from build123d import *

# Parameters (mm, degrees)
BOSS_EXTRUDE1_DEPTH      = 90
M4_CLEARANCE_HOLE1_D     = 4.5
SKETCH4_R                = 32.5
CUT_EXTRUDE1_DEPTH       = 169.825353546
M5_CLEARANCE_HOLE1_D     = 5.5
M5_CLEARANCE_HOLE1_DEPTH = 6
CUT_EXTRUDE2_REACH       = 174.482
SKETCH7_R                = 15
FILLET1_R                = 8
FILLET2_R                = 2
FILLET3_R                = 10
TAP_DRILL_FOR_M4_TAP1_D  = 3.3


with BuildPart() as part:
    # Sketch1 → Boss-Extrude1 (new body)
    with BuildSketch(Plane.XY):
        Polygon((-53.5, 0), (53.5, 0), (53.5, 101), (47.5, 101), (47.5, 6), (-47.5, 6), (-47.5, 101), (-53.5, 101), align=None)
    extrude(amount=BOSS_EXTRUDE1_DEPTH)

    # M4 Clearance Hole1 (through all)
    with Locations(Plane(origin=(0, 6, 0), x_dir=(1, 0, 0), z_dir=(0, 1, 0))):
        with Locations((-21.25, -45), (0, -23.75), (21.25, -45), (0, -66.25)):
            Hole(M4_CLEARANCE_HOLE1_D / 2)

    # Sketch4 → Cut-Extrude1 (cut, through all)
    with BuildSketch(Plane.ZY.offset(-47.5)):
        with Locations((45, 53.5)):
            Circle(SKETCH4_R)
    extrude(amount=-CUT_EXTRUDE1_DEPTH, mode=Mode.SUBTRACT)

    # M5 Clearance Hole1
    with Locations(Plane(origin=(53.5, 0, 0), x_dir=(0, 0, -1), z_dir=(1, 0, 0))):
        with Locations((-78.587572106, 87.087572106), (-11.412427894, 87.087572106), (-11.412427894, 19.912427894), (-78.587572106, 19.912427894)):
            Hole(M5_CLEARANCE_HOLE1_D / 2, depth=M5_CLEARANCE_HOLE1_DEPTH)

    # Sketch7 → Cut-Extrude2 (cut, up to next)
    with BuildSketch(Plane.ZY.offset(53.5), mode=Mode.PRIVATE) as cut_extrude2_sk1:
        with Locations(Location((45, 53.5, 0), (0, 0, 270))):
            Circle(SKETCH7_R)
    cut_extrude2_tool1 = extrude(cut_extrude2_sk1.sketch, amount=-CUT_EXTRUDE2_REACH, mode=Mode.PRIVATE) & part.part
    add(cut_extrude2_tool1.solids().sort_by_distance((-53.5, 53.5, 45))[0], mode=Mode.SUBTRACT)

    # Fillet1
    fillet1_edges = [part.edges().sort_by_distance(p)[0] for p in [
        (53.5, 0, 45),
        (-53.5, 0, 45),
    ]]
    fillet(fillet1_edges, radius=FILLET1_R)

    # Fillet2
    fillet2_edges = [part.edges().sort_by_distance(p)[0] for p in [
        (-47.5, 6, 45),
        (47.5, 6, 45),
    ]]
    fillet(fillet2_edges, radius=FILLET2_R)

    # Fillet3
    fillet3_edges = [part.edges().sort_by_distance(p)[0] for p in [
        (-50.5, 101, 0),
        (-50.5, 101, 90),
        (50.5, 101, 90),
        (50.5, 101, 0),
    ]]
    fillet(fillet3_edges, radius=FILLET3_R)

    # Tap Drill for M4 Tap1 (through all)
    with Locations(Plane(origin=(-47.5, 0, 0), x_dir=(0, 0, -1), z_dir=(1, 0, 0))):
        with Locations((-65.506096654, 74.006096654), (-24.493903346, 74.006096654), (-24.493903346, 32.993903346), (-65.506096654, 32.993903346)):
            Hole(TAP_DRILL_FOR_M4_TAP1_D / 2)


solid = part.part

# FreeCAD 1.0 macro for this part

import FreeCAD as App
import Part
import Sketcher

V = App.Vector


def edges_at(feature, points):
    """Names of the edges that pass closest to the given points."""
    edges = feature.Shape.Edges
    near = lambda p: min(range(len(edges)), key=lambda i: edges[i].distToShape(Part.Vertex(*p))[0])
    return sorted({f"Edge{near(p) + 1}" for p in points})


def add_polygon(sketch, points):
    """Adds a closed chain of lines whose ends are joined by coincident constraints."""
    first, n = sketch.GeometryCount, len(points)
    for a, b in zip(points, points[1:] + points[:1]):
        sketch.addGeometry(Part.LineSegment(App.Vector(*a, 0), App.Vector(*b, 0)), False)
    for i in range(n):
        sketch.addConstraint(Sketcher.Constraint("Coincident", first + i, 2, first + (i + 1) % n, 1))

doc = App.newDocument("Part")
body = doc.addObject("PartDesign::Body", "Body")

sketch1 = body.newObject("Sketcher::SketchObject", "Sketch")
sketch1.AttachmentSupport = (doc.getObject("XY_Plane"), [""])
sketch1.MapMode = "FlatFace"
add_polygon(sketch1, [(-54, 0), (54, 0), (54, 101), (48, 101), (48, 6), (-48, 6), (-48, 101), (-54, 101)])
sketch1.addConstraint([
    Sketcher.Constraint("Horizontal", 0),
    Sketcher.Constraint("Vertical", 1),
    Sketcher.Constraint("Horizontal", 2),
    Sketcher.Constraint("Vertical", 3),
    Sketcher.Constraint("Horizontal", 4),
    Sketcher.Constraint("Vertical", 5),
    Sketcher.Constraint("Horizontal", 6),
    Sketcher.Constraint("Vertical", 7),
    Sketcher.Constraint("Symmetric", 0, 2, 7, 2, -1, 1),
    Sketcher.Constraint("Symmetric", 2, 2, 5, 2, -2),
    Sketcher.Constraint("Equal", 4, 3),
    Sketcher.Constraint("DistanceX", 0, 1, 0, 2, 107.0),
    Sketcher.Constraint("DistanceX", 2, 2, 2, 1, 6.0),
    Sketcher.Constraint("DistanceY", 1, 1, 1, 2, 101.0),
])
pad1 = body.newObject("PartDesign::Pad", "Pad")
pad1.Profile = sketch1
pad1.Length = 90

sketch2 = body.newObject("Sketcher::SketchObject", "Sketch001")
sketch2.AttachmentSupport = (doc.getObject("XZ_Plane"), [""])
sketch2.MapMode = "FlatFace"
sketch2.AttachmentOffset = App.Placement(V(0, 0, -6), App.Rotation())
sketch2.addGeometry([
    Part.Circle(V(-21.2, 45, 0), V(0, 0, 1), 2.2),
    Part.Circle(V(0, 23.8, 0), V(0, 0, 1), 2.2),
    Part.Circle(V(21.2, 45, 0), V(0, 0, 1), 2.2),
    Part.Circle(V(0, 66.2, 0), V(0, 0, 1), 2.2),
], False)
sketch2.addConstraint([
    Sketcher.Constraint("Equal", 0, 1),
    Sketcher.Constraint("Equal", 1, 2),
    Sketcher.Constraint("Equal", 2, 3),
    Sketcher.Constraint("Symmetric", 0, 3, 2, 3, -2),
    Sketcher.Constraint("PointOnObject", 1, 3, -2),
    Sketcher.Constraint("PointOnObject", 3, 3, -2),
    Sketcher.Constraint("Diameter", 0, 4.5),
    Sketcher.Constraint("DistanceY", -1, 1, 0, 3, 45.0),
    Sketcher.Constraint("DistanceX", 0, 3, 2, 3, 42.5),
    Sketcher.Constraint("DistanceY", 1, 3, 3, 3, 42.5),
    Sketcher.Constraint("DistanceY", -1, 1, 1, 3, 23.75),
])
doc.recompute()
hole = body.newObject("PartDesign::Hole", "Hole")
hole.Profile = sketch2
hole.ThreadType = "None"
hole.Diameter = 4.5
hole.DepthType = "ThroughAll"
hole.Reversed = True

sketch3 = body.newObject("Sketcher::SketchObject", "Sketch002")
sketch3.AttachmentSupport = (doc.getObject("YZ_Plane"), [""])
sketch3.MapMode = "FlatFace"
sketch3.AttachmentOffset = App.Placement(V(0, 0, 47.5), App.Rotation())
sketch3.addGeometry(Part.Circle(V(54, 45, 0), V(0, 0, 1), 32), False)
sketch3.addConstraint([
    Sketcher.Constraint("Diameter", 0, 65.0),
    Sketcher.Constraint("DistanceY", -1, 1, 0, 3, 45.0),
    Sketcher.Constraint("DistanceX", -1, 1, 0, 3, 53.5),
])
pocket1 = body.newObject("PartDesign::Pocket", "Pocket")
pocket1.Profile = sketch3
pocket1.Type = "ThroughAll"
pocket1.Reversed = True

sketch4 = body.newObject("Sketcher::SketchObject", "Sketch003")
sketch4.AttachmentSupport = (doc.getObject("YZ_Plane"), [""])
sketch4.MapMode = "FlatFace"
sketch4.AttachmentOffset = App.Placement(V(0, 0, 53.5), App.Rotation())
sketch4.addGeometry([
    Part.Circle(V(87.1, 78.6, 0), V(0, 0, 1), 2.8),
    Part.Circle(V(87.1, 11.4, 0), V(0, 0, 1), 2.8),
    Part.Circle(V(19.9, 11.4, 0), V(0, 0, 1), 2.8),
    Part.Circle(V(19.9, 78.6, 0), V(0, 0, 1), 2.8),
], False)
sketch4.addConstraint([
    Sketcher.Constraint("Equal", 0, 1),
    Sketcher.Constraint("Equal", 1, 2),
    Sketcher.Constraint("Equal", 2, 3),
    Sketcher.Constraint("Horizontal", 1, 3, 2, 3),
    Sketcher.Constraint("Horizontal", 0, 3, 3, 3),
    Sketcher.Constraint("Vertical", 0, 3, 1, 3),
    Sketcher.Constraint("Vertical", 2, 3, 3, 3),
    Sketcher.Constraint("Diameter", 0, 5.5),
    Sketcher.Constraint("DistanceX", -1, 1, 0, 3, 87.087572),
    Sketcher.Constraint("DistanceY", -1, 1, 0, 3, 78.587572),
    Sketcher.Constraint("DistanceY", -1, 1, 1, 3, 11.412428),
    Sketcher.Constraint("DistanceX", -1, 1, 2, 3, 19.912428),
])
doc.recompute()
hole2 = body.newObject("PartDesign::Hole", "Hole001")
hole2.Profile = sketch4
hole2.ThreadType = "None"
hole2.Diameter = 5.5
hole2.DepthType = "Dimension"
hole2.Depth = 6
hole2.DrillPoint = "Flat"

sketch5 = body.newObject("Sketcher::SketchObject", "Sketch004")
sketch5.AttachmentSupport = (doc.getObject("YZ_Plane"), [""])
sketch5.MapMode = "FlatFace"
sketch5.AttachmentOffset = App.Placement(V(0, 0, -53.5), App.Rotation())
sketch5.addGeometry(Part.Circle(V(54, 45, 0), V(0, 0, 1), 15), False)
sketch5.addConstraint([
    Sketcher.Constraint("Diameter", 0, 30.0),
    Sketcher.Constraint("DistanceY", -1, 1, 0, 3, 45.0),
    Sketcher.Constraint("DistanceX", -1, 1, 0, 3, 53.5),
])
pocket2 = body.newObject("PartDesign::Pocket", "Pocket001")
pocket2.Profile = sketch5
pocket2.Type = "UpToFirst"
pocket2.Reversed = True
doc.recompute()

fillet = body.newObject("PartDesign::Fillet", "Fillet")
fillet.Base = (pocket2, edges_at(pocket2, [(53.5, 0, 45), (-53.5, 0, 45)]))
fillet.Radius = 8
doc.recompute()

fillet2 = body.newObject("PartDesign::Fillet", "Fillet001")
fillet2.Base = (fillet, edges_at(fillet, [(-47.5, 6, 45), (47.5, 6, 45)]))
fillet2.Radius = 2
doc.recompute()

fillet3 = body.newObject("PartDesign::Fillet", "Fillet002")
fillet3.Base = (fillet2, edges_at(fillet2, [
    (-50.5, 101, 0),
    (-50.5, 101, 90),
    (50.5, 101, 90),
    (50.5, 101, 0),
]))
fillet3.Radius = 10

sketch6 = body.newObject("Sketcher::SketchObject", "Sketch005")
sketch6.AttachmentSupport = (doc.getObject("YZ_Plane"), [""])
sketch6.MapMode = "FlatFace"
sketch6.AttachmentOffset = App.Placement(V(0, 0, -47.5), App.Rotation())
sketch6.addGeometry([
    Part.Circle(V(74, 65.5, 0), V(0, 0, 1), 1.6),
    Part.Circle(V(74, 24.5, 0), V(0, 0, 1), 1.6),
    Part.Circle(V(33, 24.5, 0), V(0, 0, 1), 1.6),
    Part.Circle(V(33, 65.5, 0), V(0, 0, 1), 1.6),
], False)
sketch6.addConstraint([
    Sketcher.Constraint("Equal", 0, 1),
    Sketcher.Constraint("Equal", 1, 2),
    Sketcher.Constraint("Equal", 2, 3),
    Sketcher.Constraint("Horizontal", 1, 3, 2, 3),
    Sketcher.Constraint("Horizontal", 0, 3, 3, 3),
    Sketcher.Constraint("Vertical", 0, 3, 1, 3),
    Sketcher.Constraint("Vertical", 2, 3, 3, 3),
    Sketcher.Constraint("Diameter", 0, 3.3),
    Sketcher.Constraint("DistanceX", -1, 1, 0, 3, 74.006097),
    Sketcher.Constraint("DistanceY", -1, 1, 0, 3, 65.506097),
    Sketcher.Constraint("DistanceY", -1, 1, 1, 3, 24.493903),
    Sketcher.Constraint("DistanceX", -1, 1, 2, 3, 32.993903),
])
doc.recompute()
hole3 = body.newObject("PartDesign::Hole", "Hole002")
hole3.Profile = sketch6
hole3.ThreadType = "None"
hole3.Diameter = 3.3
hole3.DepthType = "ThroughAll"

doc.recompute()
